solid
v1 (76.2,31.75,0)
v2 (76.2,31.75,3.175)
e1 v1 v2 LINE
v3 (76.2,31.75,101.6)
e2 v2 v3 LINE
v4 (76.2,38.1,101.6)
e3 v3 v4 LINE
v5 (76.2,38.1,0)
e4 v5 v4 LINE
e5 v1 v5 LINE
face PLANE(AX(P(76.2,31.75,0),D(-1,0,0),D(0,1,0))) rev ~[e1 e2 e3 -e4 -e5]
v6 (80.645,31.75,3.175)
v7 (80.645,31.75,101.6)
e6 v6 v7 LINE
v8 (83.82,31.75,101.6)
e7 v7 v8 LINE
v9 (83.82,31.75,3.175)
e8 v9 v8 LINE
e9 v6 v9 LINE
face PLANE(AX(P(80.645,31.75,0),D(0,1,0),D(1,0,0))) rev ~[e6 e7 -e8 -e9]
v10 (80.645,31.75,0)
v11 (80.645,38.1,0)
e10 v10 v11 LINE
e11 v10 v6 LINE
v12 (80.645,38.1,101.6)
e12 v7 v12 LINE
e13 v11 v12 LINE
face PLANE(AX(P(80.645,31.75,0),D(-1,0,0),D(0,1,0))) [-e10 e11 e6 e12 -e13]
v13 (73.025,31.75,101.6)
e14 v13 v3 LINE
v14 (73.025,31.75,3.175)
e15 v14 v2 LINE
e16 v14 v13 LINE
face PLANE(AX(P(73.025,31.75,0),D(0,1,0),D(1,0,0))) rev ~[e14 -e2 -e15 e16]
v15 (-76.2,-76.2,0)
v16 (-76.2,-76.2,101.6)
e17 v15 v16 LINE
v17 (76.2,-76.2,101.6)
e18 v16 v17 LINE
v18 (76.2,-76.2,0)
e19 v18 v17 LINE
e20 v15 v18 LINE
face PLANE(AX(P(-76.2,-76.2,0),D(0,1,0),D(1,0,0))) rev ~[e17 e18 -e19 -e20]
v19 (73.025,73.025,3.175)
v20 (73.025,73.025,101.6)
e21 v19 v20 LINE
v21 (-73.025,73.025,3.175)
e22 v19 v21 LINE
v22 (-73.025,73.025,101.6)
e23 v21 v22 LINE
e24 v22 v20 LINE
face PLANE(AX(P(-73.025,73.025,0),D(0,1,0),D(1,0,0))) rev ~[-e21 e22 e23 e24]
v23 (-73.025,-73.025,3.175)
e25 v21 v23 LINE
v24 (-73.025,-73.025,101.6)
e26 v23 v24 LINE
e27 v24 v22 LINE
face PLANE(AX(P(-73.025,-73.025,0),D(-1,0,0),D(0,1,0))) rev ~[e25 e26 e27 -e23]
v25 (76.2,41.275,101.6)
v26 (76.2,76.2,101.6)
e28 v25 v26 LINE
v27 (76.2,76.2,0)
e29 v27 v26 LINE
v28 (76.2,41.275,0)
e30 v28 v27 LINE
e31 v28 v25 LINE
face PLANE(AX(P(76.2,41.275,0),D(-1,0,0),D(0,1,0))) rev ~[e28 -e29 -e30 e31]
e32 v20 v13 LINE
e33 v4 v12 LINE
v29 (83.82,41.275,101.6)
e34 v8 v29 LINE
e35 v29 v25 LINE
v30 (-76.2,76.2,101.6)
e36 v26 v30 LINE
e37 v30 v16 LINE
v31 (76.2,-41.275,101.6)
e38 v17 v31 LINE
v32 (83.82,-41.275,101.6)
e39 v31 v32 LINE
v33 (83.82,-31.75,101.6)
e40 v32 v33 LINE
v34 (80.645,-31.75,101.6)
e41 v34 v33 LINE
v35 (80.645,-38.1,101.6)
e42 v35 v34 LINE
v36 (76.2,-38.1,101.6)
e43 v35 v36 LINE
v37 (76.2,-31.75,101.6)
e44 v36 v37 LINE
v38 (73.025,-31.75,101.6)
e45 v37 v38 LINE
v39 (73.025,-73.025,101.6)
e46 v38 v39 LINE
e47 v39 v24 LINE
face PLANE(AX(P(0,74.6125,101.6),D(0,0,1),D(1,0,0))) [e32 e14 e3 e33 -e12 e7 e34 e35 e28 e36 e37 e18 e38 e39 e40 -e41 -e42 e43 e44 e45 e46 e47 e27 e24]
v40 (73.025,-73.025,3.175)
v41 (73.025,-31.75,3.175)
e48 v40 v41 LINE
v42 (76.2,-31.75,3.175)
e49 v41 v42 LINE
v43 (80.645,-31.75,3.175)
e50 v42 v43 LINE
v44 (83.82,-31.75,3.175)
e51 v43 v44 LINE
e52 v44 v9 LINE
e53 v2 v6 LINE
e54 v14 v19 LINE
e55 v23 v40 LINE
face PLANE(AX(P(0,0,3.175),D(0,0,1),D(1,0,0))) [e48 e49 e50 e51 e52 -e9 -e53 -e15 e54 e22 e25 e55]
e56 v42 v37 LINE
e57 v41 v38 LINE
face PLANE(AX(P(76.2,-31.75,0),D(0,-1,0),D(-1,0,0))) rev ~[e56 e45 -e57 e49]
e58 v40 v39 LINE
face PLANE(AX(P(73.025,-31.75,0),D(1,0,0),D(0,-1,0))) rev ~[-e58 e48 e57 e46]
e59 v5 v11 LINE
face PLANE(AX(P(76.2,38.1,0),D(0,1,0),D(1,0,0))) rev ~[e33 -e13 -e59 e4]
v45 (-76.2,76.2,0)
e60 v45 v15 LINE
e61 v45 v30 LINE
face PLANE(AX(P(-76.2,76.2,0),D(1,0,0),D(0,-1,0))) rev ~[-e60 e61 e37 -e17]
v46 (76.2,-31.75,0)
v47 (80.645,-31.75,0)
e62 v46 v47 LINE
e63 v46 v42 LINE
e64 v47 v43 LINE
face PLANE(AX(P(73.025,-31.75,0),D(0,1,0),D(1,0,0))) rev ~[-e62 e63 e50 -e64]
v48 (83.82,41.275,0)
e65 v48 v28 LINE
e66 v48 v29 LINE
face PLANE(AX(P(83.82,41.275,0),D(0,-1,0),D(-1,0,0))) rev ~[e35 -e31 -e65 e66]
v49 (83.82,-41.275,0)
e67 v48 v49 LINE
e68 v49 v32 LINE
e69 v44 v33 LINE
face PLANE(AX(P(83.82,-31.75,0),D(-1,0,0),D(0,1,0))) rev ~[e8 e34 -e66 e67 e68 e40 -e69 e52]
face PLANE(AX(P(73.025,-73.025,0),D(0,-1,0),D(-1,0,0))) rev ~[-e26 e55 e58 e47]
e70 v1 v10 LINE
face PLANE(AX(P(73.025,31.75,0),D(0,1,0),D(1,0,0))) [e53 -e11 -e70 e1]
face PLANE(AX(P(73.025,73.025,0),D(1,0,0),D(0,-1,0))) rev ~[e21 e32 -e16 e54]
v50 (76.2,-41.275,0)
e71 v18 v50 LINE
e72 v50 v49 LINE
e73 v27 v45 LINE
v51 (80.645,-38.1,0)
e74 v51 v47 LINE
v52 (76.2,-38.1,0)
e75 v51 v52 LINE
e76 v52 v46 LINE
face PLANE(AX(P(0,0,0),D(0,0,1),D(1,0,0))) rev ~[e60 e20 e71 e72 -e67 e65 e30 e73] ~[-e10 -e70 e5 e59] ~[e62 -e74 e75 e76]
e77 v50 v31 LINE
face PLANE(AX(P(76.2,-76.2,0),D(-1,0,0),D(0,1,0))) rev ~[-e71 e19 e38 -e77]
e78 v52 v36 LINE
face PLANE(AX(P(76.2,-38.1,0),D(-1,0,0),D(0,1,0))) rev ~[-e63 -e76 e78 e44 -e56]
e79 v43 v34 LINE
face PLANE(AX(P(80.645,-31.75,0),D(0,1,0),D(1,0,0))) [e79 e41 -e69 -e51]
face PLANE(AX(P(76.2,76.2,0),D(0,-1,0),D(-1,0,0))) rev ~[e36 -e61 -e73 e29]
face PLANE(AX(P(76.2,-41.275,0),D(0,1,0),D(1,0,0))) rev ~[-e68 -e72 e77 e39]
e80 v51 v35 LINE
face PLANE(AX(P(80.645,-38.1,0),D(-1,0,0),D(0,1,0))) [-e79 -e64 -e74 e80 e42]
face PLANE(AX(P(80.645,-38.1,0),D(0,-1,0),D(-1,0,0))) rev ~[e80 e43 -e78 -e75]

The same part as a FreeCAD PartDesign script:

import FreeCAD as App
import Part
import Sketcher
from FreeCAD import Vector
Q = App.Units.Quantity

doc = App.newDocument("Part")
body = doc.addObject("PartDesign::Body", "Body")

# Sketch on XY plane
sketch1 = body.newObject("Sketcher::SketchObject", "Sketch")
sketch1.AttachmentSupport = (doc.getObject("XY_Plane"), [""])
sketch1.MapMode = "FlatFace"
sketch1.addGeometry([
    Part.LineSegment(Vector(-76.2, 76.2, 0), Vector(-76.2, -76.2, 0)),  # 0
    Part.LineSegment(Vector(-76.2, -76.2, 0), Vector(76.2, -76.2, 0)),  # 1
    Part.LineSegment(Vector(76.2, -76.2, 0), Vector(76.2, -41.3, 0)),  # 2
    Part.LineSegment(Vector(76.2, -41.3, 0), Vector(83.8, -41.3, 0)),  # 3
    Part.LineSegment(Vector(83.8, -41.3, 0), Vector(83.8, -31.8, 0)),  # 4
    Part.LineSegment(Vector(83.8, -31.8, 0), Vector(80.6, -31.8, 0)),  # 5
    Part.LineSegment(Vector(80.6, -31.8, 0), Vector(80.6, -38.1, 0)),  # 6
    Part.LineSegment(Vector(80.6, -38.1, 0), Vector(76.2, -38.1, 0)),  # 7
    Part.LineSegment(Vector(76.2, -38.1, 0), Vector(76.2, -31.8, 0)),  # 8
    Part.LineSegment(Vector(76.2, -31.8, 0), Vector(73, -31.8, 0)),  # 9
    Part.LineSegment(Vector(73, -31.8, 0), Vector(73, -73, 0)),  # 10
    Part.LineSegment(Vector(73, -73, 0), Vector(-73, -73, 0)),  # 11
    Part.LineSegment(Vector(-73, -73, 0), Vector(-73, 73, 0)),  # 12
    Part.LineSegment(Vector(-73, 73, 0), Vector(73, 73, 0)),  # 13
    Part.LineSegment(Vector(73, 73, 0), Vector(73, 31.8, 0)),  # 14
    Part.LineSegment(Vector(73, 31.8, 0), Vector(76.2, 31.8, 0)),  # 15
    Part.LineSegment(Vector(76.2, 31.8, 0), Vector(76.2, 38.1, 0)),  # 16
    Part.LineSegment(Vector(76.2, 38.1, 0), Vector(80.6, 38.1, 0)),  # 17
    Part.LineSegment(Vector(80.6, 38.1, 0), Vector(80.6, 31.8, 0)),  # 18
    Part.LineSegment(Vector(80.6, 31.8, 0), Vector(83.8, 31.8, 0)),  # 19
    Part.LineSegment(Vector(83.8, 31.8, 0), Vector(83.8, 41.3, 0)),  # 20
    Part.LineSegment(Vector(83.8, 41.3, 0), Vector(76.2, 41.3, 0)),  # 21
    Part.LineSegment(Vector(76.2, 41.3, 0), Vector(76.2, 76.2, 0)),  # 22
    Part.LineSegment(Vector(76.2, 76.2, 0), Vector(-76.2, 76.2, 0)),  # 23
], False)
sketch1.addConstraint([
    Sketcher.Constraint("Coincident", 0, 2, 1, 1),
    Sketcher.Constraint("Coincident", 1, 2, 2, 1),
    Sketcher.Constraint("Coincident", 2, 2, 3, 1),
    Sketcher.Constraint("Coincident", 3, 2, 4, 1),
    Sketcher.Constraint("Coincident", 4, 2, 5, 1),
    Sketcher.Constraint("Coincident", 5, 2, 6, 1),
    Sketcher.Constraint("Coincident", 6, 2, 7, 1),
    Sketcher.Constraint("Coincident", 7, 2, 8, 1),
    Sketcher.Constraint("Coincident", 8, 2, 9, 1),
    Sketcher.Constraint("Coincident", 9, 2, 10, 1),
    Sketcher.Constraint("Coincident", 10, 2, 11, 1),
    Sketcher.Constraint("Coincident", 11, 2, 12, 1),
    Sketcher.Constraint("Coincident", 12, 2, 13, 1),
    Sketcher.Constraint("Coincident", 13, 2, 14, 1),
    Sketcher.Constraint("Coincident", 14, 2, 15, 1),
    Sketcher.Constraint("Coincident", 15, 2, 16, 1),
    Sketcher.Constraint("Coincident", 16, 2, 17, 1),
    Sketcher.Constraint("Coincident", 17, 2, 18, 1),
    Sketcher.Constraint("Coincident", 18, 2, 19, 1),
    Sketcher.Constraint("Coincident", 19, 2, 20, 1),
    Sketcher.Constraint("Coincident", 20, 2, 21, 1),
    Sketcher.Constraint("Coincident", 21, 2, 22, 1),
    Sketcher.Constraint("Coincident", 22, 2, 23, 1),
    Sketcher.Constraint("Coincident", 23, 2, 0, 1),
    Sketcher.Constraint("Vertical", 0),
    Sketcher.Constraint("Horizontal", 1),
    Sketcher.Constraint("Vertical", 2),
    Sketcher.Constraint("Horizontal", 3),
    Sketcher.Constraint("Vertical", 4),
    Sketcher.Constraint("Horizontal", 5),
    Sketcher.Constraint("Vertical", 6),
    Sketcher.Constraint("Horizontal", 7),
    Sketcher.Constraint("Vertical", 8),
    Sketcher.Constraint("Horizontal", 9),
    Sketcher.Constraint("Vertical", 10),
    Sketcher.Constraint("Horizontal", 11),
    Sketcher.Constraint("Vertical", 12),
    Sketcher.Constraint("Horizontal", 13),
    Sketcher.Constraint("Vertical", 14),
    Sketcher.Constraint("Horizontal", 15),
    Sketcher.Constraint("Vertical", 16),
    Sketcher.Constraint("Horizontal", 17),
    Sketcher.Constraint("Vertical", 18),
    Sketcher.Constraint("Horizontal", 19),
    Sketcher.Constraint("Vertical", 20),
    Sketcher.Constraint("Horizontal", 21),
    Sketcher.Constraint("Vertical", 22),
    Sketcher.Constraint("Horizontal", 23),
    Sketcher.Constraint("Symmetric", 10, 2, 12, 2, -1, 1),
    Sketcher.Constraint("Symmetric", 0, 2, 22, 2, -1, 1),
    Sketcher.Constraint("Symmetric", 9, 2, 14, 2, -1),
    Sketcher.Constraint("Symmetric", 7, 2, 16, 2, -1),
    Sketcher.Constraint("Symmetric", 5, 2, 18, 2, -1),
    Sketcher.Constraint("Symmetric", 3, 2, 20, 2, -1),
    Sketcher.Constraint("Horizontal", 5, 2, 8, 2),
    Sketcher.Constraint("Vertical", 2, 2, 7, 2),
    Sketcher.Constraint("Vertical", 16, 2, 21, 2),
    Sketcher.Constraint("Equal", 5, 9),
    Sketcher.Constraint("Equal", 23, 0),
    Sketcher.Constraint("Equal", 13, 12),
    Sketcher.Constraint("DistanceX", 1, 1, 1, 2, Q("6 in")),
    Sketcher.Constraint("DistanceX", 3, 1, 3, 2, Q("0.3 in")),
    Sketcher.Constraint("DistanceX", 11, 2, 11, 1, Q("5.75 in")),
    Sketcher.Constraint("DistanceY", 6, 2, 6, 1, Q("0.25 in")),
    Sketcher.Constraint("DistanceY", 6, 2, -1, 1, Q("1.5 in")),
    Sketcher.Constraint("DistanceY", 2, 1, 2, 2, Q("1.375 in")),
])
pad1 = body.newObject("PartDesign::Pad", "Pad")
pad1.Profile = sketch1
pad1.Length = Q("4 in")

# Sketch on XY plane
sketch2 = body.newObject("Sketcher::SketchObject", "Sketch001")
sketch2.AttachmentSupport = (doc.getObject("XY_Plane"), [""])
sketch2.MapMode = "FlatFace"
sketch2.addGeometry([
    Part.LineSegment(Vector(73, 73, 0), Vector(-73, 73, 0)),  # 0
    Part.LineSegment(Vector(-73, 73, 0), Vector(-73, -73, 0)),  # 1
    Part.LineSegment(Vector(-73, -73, 0), Vector(73, -73, 0)),  # 2
    Part.LineSegment(Vector(73, -73, 0), Vector(73, -32, 0)),  # 3
    Part.LineSegment(Vector(73, -32, 0), Vector(84, -32, 0)),  # 4
    Part.LineSegment(Vector(84, -32, 0), Vector(84, 32, 0)),  # 5
    Part.LineSegment(Vector(84, 32, 0), Vector(73, 32, 0)),  # 6
    Part.LineSegment(Vector(73, 32, 0), Vector(73, 73, 0)),  # 7
], False)
sketch2.addConstraint([
    Sketcher.Constraint("Coincident", 0, 2, 1, 1),
    Sketcher.Constraint("Coincident", 1, 2, 2, 1),
    Sketcher.Constraint("Coincident", 2, 2, 3, 1),
    Sketcher.Constraint("Coincident", 3, 2, 4, 1),
    Sketcher.Constraint("Coincident", 4, 2, 5, 1),
    Sketcher.Constraint("Coincident", 5, 2, 6, 1),
    Sketcher.Constraint("Coincident", 6, 2, 7, 1),
    Sketcher.Constraint("Coincident", 7, 2, 0, 1),
    Sketcher.Constraint("Horizontal", 0),
    Sketcher.Constraint("Vertical", 1),
    Sketcher.Constraint("Horizontal", 2),
    Sketcher.Constraint("Vertical", 3),
    Sketcher.Constraint("Horizontal", 4),
    Sketcher.Constraint("Vertical", 5),
    Sketcher.Constraint("Horizontal", 6),
    Sketcher.Constraint("Vertical", 7),
    Sketcher.Constraint("Symmetric", 0, 2, 2, 2, -1, 1),
    Sketcher.Constraint("Symmetric", 3, 2, 6, 2, -1),
    Sketcher.Constraint("Equal", 2, 1),
    Sketcher.Constraint("DistanceY", 5, 1, 5, 2, Q("2.5 in")),
    Sketcher.Constraint("DistanceX", 0, 2, 0, 1, Q("5.75 in")),
    Sketcher.Constraint("DistanceX", -1, 1, 4, 2, Q("3.3 in")),
])
pad2 = body.newObject("PartDesign::Pad", "Pad001")
pad2.Profile = sketch2
pad2.Length = Q("0.125 in")

doc.recompute()
